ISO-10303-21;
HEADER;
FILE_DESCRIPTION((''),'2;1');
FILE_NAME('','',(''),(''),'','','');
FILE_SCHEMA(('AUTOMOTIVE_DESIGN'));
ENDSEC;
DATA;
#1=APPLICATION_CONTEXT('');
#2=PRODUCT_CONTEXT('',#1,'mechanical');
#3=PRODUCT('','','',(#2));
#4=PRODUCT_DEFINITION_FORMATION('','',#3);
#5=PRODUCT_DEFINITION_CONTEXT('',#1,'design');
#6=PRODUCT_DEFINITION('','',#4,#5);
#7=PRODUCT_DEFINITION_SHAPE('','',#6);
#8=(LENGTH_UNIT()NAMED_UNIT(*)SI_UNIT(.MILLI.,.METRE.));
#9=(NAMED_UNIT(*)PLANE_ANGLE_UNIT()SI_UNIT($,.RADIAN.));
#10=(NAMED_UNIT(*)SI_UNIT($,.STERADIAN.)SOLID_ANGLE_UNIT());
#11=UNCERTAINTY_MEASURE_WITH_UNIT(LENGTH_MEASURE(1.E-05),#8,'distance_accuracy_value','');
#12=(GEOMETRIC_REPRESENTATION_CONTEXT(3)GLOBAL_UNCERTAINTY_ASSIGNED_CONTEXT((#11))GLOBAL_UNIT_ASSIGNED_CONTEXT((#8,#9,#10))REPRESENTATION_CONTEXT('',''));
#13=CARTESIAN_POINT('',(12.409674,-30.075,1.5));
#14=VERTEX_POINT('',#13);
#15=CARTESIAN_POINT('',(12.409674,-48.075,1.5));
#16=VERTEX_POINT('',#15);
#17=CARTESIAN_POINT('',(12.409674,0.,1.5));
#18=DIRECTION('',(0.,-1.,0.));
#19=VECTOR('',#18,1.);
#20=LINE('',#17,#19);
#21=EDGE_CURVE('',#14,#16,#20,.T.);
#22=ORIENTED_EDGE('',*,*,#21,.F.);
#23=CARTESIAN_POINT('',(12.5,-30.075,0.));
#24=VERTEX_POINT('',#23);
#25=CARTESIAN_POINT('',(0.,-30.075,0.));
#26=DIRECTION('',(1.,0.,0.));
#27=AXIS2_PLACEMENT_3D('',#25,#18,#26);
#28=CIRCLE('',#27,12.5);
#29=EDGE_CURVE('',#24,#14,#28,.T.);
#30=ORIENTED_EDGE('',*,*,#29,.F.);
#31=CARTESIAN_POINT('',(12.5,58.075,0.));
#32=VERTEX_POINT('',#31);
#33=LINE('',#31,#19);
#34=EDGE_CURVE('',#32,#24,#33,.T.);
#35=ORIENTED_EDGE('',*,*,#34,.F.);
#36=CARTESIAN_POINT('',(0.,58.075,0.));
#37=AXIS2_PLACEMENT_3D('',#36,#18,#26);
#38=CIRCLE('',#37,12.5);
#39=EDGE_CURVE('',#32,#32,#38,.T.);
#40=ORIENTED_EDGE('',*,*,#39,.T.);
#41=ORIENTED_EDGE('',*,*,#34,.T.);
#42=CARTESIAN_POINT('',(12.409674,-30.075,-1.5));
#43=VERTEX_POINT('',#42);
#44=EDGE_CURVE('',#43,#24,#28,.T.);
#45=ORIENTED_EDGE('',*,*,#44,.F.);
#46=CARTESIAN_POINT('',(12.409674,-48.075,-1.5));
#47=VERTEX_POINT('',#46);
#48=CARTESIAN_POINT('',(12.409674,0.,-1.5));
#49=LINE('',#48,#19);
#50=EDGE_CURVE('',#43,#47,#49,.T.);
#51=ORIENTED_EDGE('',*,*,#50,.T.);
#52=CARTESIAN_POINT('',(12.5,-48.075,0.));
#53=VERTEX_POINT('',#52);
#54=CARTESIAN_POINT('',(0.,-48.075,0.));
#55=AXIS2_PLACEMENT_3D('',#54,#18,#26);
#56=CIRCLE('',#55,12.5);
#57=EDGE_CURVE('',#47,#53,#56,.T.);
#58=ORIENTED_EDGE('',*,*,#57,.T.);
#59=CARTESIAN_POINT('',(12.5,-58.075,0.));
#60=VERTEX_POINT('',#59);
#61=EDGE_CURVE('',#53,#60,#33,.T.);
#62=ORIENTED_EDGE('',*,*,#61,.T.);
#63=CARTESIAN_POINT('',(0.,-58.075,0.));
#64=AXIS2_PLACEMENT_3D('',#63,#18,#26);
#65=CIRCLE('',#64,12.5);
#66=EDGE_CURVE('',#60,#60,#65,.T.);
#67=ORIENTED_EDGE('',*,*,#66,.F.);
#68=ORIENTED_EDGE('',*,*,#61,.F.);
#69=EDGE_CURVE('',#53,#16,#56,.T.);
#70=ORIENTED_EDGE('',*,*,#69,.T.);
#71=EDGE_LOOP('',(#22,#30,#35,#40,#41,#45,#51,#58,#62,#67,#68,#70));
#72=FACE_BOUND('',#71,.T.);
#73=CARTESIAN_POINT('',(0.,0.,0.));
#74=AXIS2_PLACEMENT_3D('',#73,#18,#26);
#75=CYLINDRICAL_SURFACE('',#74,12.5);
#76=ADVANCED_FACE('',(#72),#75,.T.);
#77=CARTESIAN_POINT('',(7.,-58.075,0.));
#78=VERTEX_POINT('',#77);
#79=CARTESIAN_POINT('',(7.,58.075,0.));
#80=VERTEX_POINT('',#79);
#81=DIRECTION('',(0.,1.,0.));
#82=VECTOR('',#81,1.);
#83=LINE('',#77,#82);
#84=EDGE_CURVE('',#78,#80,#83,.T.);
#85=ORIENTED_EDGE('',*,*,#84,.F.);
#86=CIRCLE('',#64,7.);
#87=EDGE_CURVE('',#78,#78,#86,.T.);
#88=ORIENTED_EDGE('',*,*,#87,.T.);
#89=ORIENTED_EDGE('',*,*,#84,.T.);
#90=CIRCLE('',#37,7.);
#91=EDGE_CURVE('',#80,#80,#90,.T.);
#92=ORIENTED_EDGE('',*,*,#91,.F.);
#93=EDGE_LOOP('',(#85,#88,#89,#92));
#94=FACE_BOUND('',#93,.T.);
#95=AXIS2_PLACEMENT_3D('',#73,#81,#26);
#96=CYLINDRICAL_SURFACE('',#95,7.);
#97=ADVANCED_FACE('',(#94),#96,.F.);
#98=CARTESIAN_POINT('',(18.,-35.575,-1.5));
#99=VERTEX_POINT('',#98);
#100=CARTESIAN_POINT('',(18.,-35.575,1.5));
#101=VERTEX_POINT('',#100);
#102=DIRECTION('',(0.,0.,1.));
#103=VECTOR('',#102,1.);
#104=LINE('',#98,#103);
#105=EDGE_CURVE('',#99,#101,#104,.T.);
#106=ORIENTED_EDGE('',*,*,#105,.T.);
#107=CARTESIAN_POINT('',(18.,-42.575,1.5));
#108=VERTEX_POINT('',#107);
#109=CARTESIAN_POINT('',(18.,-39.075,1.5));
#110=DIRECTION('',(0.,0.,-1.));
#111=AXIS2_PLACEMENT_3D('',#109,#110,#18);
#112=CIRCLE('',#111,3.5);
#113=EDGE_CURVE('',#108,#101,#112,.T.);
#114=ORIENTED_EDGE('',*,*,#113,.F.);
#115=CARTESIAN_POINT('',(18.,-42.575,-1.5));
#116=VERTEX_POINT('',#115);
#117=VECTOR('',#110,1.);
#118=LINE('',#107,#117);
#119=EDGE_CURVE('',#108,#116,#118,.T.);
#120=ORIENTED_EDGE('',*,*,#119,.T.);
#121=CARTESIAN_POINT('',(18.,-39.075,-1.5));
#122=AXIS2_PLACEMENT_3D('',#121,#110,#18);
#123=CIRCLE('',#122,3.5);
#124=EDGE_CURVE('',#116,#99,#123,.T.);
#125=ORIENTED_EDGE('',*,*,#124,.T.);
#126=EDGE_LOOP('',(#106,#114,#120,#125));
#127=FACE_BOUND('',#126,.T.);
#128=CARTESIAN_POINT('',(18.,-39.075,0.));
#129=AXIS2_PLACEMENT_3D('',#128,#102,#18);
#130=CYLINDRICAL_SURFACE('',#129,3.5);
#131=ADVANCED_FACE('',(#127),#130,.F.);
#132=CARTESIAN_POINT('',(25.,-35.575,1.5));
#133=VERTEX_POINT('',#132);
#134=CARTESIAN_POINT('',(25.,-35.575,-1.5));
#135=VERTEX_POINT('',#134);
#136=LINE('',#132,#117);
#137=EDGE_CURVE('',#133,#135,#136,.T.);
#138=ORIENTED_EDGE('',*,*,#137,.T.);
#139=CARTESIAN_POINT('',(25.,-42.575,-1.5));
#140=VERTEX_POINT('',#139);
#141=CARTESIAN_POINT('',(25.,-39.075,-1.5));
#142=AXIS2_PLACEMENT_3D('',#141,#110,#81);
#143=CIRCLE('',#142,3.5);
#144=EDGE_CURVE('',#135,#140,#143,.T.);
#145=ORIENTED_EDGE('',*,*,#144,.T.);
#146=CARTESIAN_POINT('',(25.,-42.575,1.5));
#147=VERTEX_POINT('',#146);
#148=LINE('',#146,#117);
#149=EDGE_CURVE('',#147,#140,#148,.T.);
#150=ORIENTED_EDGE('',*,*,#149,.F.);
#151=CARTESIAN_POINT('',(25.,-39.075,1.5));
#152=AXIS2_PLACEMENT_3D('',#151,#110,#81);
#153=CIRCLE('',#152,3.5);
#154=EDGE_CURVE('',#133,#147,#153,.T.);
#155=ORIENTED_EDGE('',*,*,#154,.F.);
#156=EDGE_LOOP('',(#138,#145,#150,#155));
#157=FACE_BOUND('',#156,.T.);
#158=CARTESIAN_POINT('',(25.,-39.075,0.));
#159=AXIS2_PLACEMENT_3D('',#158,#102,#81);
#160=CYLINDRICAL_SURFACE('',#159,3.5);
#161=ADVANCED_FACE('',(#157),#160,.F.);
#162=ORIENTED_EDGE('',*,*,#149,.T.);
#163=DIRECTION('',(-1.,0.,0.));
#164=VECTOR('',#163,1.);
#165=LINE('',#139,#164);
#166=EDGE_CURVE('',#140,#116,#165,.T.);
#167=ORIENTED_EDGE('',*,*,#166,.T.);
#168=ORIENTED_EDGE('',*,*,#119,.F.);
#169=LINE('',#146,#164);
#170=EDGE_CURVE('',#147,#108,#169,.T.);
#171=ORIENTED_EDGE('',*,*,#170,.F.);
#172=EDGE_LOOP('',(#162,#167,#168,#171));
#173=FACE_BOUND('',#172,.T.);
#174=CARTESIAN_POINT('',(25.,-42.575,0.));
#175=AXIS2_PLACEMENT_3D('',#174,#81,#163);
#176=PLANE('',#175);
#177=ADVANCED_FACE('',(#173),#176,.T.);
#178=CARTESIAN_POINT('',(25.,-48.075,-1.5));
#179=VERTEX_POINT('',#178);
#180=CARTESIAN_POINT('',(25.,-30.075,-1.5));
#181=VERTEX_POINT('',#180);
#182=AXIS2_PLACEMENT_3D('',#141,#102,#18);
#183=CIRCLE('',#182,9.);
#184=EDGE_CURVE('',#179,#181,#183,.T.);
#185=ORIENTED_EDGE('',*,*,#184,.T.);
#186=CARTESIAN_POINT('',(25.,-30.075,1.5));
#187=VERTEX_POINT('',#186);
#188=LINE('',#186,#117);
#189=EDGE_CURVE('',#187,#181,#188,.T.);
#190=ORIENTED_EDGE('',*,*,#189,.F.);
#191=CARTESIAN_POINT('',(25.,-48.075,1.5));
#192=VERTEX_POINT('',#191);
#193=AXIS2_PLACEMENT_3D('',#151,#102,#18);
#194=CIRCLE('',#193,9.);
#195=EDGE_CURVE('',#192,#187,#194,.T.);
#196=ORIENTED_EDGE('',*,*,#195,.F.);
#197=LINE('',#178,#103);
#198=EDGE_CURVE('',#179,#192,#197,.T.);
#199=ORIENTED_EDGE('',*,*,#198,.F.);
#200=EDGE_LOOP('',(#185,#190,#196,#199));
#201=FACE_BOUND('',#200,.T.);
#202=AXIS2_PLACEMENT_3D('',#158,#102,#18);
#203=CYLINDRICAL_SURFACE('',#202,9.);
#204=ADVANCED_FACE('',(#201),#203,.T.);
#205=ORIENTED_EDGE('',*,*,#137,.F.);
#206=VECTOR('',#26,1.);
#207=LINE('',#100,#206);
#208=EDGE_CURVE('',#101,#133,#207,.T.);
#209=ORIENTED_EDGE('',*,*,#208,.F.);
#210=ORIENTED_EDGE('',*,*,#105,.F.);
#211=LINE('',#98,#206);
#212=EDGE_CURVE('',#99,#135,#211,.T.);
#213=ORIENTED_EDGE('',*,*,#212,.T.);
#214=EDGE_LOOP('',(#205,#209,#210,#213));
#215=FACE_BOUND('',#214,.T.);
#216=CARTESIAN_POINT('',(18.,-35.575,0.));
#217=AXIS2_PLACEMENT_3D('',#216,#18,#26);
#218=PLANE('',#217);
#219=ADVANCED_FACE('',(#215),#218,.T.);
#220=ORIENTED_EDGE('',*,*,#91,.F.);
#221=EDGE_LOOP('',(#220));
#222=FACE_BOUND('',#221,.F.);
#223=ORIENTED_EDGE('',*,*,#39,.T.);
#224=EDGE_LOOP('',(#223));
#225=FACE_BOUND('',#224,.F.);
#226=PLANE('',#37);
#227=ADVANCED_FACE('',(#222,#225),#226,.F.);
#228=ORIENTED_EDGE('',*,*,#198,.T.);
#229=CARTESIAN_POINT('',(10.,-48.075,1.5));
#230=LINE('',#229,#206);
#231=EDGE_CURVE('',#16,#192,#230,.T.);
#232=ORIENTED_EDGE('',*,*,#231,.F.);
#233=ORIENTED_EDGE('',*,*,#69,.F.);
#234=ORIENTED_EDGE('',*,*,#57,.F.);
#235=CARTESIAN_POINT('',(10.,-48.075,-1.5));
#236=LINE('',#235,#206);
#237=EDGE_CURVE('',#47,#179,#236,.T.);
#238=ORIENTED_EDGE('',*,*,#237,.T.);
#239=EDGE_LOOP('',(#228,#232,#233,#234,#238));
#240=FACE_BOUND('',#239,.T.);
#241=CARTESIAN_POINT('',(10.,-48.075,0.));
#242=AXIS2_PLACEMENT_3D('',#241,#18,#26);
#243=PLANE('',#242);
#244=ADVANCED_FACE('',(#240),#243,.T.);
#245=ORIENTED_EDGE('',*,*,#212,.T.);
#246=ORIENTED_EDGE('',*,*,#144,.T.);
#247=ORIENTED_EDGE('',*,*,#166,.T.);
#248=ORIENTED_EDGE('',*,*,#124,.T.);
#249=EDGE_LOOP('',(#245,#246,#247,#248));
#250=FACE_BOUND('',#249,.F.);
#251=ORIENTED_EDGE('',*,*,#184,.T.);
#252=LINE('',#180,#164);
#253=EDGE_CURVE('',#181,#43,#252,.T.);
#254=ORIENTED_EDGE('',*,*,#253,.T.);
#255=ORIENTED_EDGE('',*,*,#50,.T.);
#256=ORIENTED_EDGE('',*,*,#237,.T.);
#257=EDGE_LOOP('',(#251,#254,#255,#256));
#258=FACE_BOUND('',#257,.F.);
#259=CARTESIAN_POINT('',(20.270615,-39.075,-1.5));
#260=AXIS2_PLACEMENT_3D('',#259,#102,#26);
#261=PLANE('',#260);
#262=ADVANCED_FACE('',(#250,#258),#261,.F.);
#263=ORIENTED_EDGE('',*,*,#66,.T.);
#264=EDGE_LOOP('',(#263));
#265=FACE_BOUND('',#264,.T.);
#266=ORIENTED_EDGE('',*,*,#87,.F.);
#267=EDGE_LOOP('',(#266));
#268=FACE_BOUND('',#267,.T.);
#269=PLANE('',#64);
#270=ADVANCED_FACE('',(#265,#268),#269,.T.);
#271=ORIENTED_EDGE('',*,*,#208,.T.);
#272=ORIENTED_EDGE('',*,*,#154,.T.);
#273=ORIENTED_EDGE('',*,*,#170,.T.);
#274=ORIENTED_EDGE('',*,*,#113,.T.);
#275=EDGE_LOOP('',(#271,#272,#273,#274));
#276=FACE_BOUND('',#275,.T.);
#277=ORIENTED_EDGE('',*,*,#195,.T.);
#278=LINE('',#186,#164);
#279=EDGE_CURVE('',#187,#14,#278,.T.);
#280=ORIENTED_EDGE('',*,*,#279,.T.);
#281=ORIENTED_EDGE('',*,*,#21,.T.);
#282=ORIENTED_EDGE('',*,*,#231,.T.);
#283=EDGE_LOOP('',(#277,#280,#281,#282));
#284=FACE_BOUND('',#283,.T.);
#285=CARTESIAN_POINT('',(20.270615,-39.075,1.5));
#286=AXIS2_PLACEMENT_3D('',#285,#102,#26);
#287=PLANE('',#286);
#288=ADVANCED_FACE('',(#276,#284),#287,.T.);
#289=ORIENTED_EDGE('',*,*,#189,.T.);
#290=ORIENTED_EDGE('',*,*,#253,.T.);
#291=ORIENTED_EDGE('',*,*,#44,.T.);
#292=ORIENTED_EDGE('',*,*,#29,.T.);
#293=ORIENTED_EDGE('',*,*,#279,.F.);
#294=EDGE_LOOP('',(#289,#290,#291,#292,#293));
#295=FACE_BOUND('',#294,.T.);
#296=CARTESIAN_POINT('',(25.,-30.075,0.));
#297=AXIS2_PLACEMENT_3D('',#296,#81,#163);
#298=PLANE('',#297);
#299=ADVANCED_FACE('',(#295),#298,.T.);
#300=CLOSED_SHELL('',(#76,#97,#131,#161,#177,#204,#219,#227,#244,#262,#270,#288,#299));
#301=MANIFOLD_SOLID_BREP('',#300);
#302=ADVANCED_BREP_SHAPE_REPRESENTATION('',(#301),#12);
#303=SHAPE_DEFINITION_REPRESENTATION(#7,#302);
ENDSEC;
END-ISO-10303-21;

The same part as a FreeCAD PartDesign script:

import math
import FreeCAD as App
import Part
import Sketcher

V = App.Vector
Q = App.Units.Quantity

doc = App.newDocument("Part")
params = doc.addObject("Spreadsheet::Sheet", "Params")
for row, (alias, value) in enumerate([
    ("sketch1_diameter", "25 mm"),
    ("sketch1_diameter2", "14 mm"),
    ("pad1_length", "116.15 mm"),
    ("sketch2_radius", "9 mm"),
    ("sketch2_radius2", "3.5 mm"),
    ("sketch2_width", "15 mm"),
    ("sketch2_width2", "7 mm"),
    ("pad2_length", "3 mm"),
], start=1):
    params.set(f"A{row}", alias)
    params.set(f"B{row}", "=" + value)
    params.setAlias(f"B{row}", alias)

body = doc.addObject("PartDesign::Body", "Body")

sketch1 = body.newObject("Sketcher::SketchObject", "Sketch")
sketch1.AttachmentSupport = (doc.getObject("XZ_Plane"), [""])
sketch1.MapMode = "FlatFace"
sketch1.addGeometry([
    Part.Circle(V(0, 0, 0), V(0, 0, 1), 12.5),
    Part.Circle(V(0, 0, 0), V(0, 0, 1), 7),
], False)
sketch1.addConstraint([
    Sketcher.Constraint("Coincident", 0, 3, -1, 1),
    Sketcher.Constraint("Coincident", 1, 3, -1, 1),
    Sketcher.Constraint("Diameter", 0, Q("25 mm")),
    Sketcher.Constraint("Diameter", 1, Q("14 mm")),
])
sketch1.setExpression("Constraints[2]", "Params.sketch1_diameter")
sketch1.setExpression("Constraints[3]", "Params.sketch1_diameter2")
pad1 = body.newObject("PartDesign::Pad", "Pad")
pad1.Profile = sketch1
pad1.setExpression("Length", "Params.pad1_length")
pad1.Midplane = True

sketch2 = body.newObject("Sketcher::SketchObject", "Sketch001")
sketch2.AttachmentSupport = (doc.getObject("XY_Plane"), [""])
sketch2.MapMode = "FlatFace"
sketch2.addGeometry([
    Part.LineSegment(V(10, -30.075, 0), V(10, -48.075, 0)),
    Part.LineSegment(V(10, -48.075, 0), V(25, -48.075, 0)),
    Part.ArcOfCircle(Part.Circle(V(25, -39.075, 0), V(0, 0, 1), 9), math.radians(-90), math.radians(90)),
    Part.LineSegment(V(25, -30.075, 0), V(10, -30.075, 0)),
    Part.ArcOfCircle(Part.Circle(V(18, -39.075, 0), V(0, 0, 1), 3.5), math.radians(90), math.radians(270)),
    Part.LineSegment(V(18, -35.575, 0), V(25, -35.575, 0)),
    Part.ArcOfCircle(Part.Circle(V(25, -39.075, 0), V(0, 0, 1), 3.5), math.radians(-90), math.radians(90)),
    Part.LineSegment(V(25, -42.575, 0), V(18, -42.575, 0)),
], False)
sketch2.addConstraint([
    Sketcher.Constraint("Coincident", 0, 2, 1, 1),
    Sketcher.Constraint("Tangent", 1, 2, 2, 1),
    Sketcher.Constraint("Tangent", 2, 2, 3, 1),
    Sketcher.Constraint("Coincident", 3, 2, 0, 1),
    Sketcher.Constraint("Tangent", 4, 1, 5, 1),
    Sketcher.Constraint("Tangent", 5, 2, 6, 2),
    Sketcher.Constraint("Tangent", 6, 1, 7, 1),
    Sketcher.Constraint("Tangent", 7, 2, 4, 2),
    Sketcher.Constraint("Vertical", 0),
    Sketcher.Constraint("Horizontal", 1),
    Sketcher.Constraint("Horizontal", 3),
    Sketcher.Constraint("Horizontal", 5),
    Sketcher.Constraint("Horizontal", 7),
    Sketcher.Constraint("Coincident", 6, 3, 2, 3),
    Sketcher.Constraint("Radius", 2, Q("9 mm")),
    Sketcher.Constraint("Radius", 4, Q("3.5 mm")),
    Sketcher.Constraint("DistanceX", 1, 1, 1, 2, Q("15 mm")),
    Sketcher.Constraint("DistanceX", 5, 1, 5, 2, Q("7 mm")),
    Sketcher.Constraint("DistanceX", -1, 1, 2, 3, Q("25 mm")),
    Sketcher.Constraint("DistanceY", 2, 3, -1, 1, Q("39.075 mm")),
])
sketch2.setExpression("Constraints[14]", "Params.sketch2_radius")
sketch2.setExpression("Constraints[15]", "Params.sketch2_radius2")
sketch2.setExpression("Constraints[16]", "Params.sketch2_width")
sketch2.setExpression("Constraints[17]", "Params.sketch2_width2")
pad2 = body.newObject("PartDesign::Pad", "Pad001")
pad2.Profile = sketch2
pad2.setExpression("Length", "Params.pad2_length")
pad2.Midplane = True

doc.recompute()
